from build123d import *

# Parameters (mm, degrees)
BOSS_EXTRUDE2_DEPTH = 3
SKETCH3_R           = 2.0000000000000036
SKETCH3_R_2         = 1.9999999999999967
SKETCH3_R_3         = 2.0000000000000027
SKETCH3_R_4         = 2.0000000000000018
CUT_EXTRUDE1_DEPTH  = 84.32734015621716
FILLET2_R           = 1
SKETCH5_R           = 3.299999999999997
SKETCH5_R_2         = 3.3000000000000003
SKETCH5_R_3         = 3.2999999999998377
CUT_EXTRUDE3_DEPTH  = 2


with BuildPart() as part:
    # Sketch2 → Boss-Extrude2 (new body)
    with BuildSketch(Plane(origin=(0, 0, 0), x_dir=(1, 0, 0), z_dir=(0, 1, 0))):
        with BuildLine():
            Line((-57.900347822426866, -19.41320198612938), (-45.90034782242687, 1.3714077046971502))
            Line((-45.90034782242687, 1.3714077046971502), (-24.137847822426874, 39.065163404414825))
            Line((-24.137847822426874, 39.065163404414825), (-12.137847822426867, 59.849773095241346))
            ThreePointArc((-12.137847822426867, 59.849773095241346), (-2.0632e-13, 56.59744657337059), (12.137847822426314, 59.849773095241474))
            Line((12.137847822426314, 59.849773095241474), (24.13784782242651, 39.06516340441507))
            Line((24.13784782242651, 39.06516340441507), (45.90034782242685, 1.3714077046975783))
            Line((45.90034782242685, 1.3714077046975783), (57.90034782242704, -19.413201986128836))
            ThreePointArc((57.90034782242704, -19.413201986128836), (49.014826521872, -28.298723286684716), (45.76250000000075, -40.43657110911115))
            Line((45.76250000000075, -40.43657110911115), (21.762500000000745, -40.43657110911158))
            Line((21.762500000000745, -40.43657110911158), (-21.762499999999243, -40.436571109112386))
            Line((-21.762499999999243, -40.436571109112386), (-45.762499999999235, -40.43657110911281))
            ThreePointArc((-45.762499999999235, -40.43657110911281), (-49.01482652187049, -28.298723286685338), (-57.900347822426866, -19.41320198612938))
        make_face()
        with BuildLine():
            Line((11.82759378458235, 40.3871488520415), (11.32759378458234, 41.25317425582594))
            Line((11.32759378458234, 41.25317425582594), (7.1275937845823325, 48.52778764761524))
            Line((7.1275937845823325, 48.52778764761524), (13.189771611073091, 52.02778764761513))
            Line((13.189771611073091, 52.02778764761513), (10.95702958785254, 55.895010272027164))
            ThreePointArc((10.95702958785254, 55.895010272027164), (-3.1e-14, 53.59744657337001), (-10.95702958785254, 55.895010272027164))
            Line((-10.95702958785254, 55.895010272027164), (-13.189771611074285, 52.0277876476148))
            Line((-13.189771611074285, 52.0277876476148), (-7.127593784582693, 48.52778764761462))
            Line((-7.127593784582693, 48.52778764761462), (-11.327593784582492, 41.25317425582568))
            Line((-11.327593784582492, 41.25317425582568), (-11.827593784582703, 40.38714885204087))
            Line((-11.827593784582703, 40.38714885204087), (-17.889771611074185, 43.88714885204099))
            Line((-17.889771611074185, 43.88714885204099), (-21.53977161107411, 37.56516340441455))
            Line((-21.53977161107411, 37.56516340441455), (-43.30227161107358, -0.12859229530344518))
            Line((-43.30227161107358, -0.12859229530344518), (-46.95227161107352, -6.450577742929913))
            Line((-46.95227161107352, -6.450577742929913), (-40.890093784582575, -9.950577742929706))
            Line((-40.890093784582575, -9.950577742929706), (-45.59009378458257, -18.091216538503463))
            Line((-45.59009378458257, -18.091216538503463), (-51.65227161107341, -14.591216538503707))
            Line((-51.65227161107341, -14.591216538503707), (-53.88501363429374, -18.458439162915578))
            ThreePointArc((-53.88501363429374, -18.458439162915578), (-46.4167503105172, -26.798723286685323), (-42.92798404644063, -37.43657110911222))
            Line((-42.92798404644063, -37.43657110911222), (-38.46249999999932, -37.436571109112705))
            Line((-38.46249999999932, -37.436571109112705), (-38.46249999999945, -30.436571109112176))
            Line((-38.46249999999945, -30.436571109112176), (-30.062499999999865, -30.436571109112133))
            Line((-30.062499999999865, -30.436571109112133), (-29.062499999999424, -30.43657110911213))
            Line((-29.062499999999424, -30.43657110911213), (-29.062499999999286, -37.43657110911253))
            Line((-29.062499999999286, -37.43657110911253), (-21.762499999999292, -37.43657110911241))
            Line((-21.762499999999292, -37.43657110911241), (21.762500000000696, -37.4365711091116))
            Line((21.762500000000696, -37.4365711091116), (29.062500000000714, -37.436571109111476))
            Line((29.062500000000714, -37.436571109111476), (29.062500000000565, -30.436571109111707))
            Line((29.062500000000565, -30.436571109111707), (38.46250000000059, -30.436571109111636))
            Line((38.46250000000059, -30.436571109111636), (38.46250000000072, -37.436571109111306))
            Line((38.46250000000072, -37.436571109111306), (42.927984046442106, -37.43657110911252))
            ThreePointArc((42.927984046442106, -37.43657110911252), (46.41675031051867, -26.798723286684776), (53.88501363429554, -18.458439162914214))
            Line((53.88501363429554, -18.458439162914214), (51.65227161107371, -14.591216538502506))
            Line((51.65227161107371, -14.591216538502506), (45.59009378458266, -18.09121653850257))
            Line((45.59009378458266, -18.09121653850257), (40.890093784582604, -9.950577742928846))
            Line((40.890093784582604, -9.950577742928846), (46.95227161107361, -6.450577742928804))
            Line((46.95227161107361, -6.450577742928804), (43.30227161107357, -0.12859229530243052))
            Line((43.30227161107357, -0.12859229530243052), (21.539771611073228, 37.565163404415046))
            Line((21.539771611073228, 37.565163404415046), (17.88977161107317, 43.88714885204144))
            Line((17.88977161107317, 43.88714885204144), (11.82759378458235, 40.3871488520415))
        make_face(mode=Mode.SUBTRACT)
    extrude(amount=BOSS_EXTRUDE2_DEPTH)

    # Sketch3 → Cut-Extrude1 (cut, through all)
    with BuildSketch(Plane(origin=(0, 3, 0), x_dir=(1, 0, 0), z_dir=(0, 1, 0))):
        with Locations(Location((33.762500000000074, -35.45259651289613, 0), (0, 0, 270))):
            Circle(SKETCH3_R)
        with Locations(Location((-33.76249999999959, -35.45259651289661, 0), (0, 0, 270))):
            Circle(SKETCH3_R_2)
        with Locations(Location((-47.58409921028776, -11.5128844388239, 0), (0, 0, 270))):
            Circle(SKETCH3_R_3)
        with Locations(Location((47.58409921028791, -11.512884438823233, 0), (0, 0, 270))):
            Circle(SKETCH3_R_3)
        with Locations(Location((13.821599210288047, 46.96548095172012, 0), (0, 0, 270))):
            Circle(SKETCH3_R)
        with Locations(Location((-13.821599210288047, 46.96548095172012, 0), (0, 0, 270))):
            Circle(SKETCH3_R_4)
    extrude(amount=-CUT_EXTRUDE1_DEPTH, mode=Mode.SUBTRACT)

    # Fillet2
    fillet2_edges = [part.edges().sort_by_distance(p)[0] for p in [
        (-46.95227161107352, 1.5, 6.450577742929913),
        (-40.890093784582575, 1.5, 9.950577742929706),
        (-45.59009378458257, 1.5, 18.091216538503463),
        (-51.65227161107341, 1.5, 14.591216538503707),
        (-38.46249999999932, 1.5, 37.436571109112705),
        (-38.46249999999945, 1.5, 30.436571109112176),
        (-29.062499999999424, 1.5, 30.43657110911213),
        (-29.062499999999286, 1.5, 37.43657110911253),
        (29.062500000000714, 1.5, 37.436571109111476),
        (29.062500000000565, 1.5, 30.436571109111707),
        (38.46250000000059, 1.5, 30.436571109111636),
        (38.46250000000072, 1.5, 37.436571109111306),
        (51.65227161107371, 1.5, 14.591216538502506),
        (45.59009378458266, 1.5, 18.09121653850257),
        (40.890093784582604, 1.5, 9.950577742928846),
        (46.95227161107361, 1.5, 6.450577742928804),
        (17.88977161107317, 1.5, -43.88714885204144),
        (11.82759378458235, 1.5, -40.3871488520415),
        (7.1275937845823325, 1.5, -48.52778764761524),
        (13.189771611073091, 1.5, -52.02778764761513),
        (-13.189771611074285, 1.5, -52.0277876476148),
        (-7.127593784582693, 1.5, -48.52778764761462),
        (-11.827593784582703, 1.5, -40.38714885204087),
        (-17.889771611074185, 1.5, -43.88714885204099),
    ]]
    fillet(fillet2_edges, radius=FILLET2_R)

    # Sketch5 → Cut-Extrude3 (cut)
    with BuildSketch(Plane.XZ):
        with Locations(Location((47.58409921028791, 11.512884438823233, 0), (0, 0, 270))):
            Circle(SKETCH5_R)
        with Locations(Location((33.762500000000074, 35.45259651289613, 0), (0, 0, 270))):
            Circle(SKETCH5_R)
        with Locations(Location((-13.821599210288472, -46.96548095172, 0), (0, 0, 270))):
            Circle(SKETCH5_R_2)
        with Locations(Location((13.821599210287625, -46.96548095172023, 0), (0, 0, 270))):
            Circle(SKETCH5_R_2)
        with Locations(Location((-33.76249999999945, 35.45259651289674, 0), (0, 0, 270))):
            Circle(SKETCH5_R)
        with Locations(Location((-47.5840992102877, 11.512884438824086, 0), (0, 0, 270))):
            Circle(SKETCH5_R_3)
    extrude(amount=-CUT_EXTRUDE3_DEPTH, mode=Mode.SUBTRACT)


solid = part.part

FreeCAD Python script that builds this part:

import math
import FreeCAD as App
import Part
import Sketcher
Q = App.Units.Quantity


def edges_at(feature, points):
    """Names of the edges that pass closest to the given points."""
    edges = feature.Shape.Edges
    near = lambda p: min(range(len(edges)), key=lambda i: edges[i].distToShape(Part.Vertex(*p))[0])
    return sorted({f"Edge{near(p) + 1}" for p in points})

doc = App.newDocument("Part")
params = doc.addObject("Spreadsheet::Sheet", "Params")
for row, (alias, value) in enumerate([
    ("sketch1_height", "7 mm"),
    ("sketch1_length", "7 mm"),
    ("sketch1_width", "9.4 mm"),
    ("sketch1_length2", "9.4 mm"),
    ("pad1_length", "3 mm"),
    ("sketch2_diameter", "4 mm"),
    ("fillet_radius", "1 mm"),
    ("sketch3_diameter", "6.6 mm"),
    ("pocket2_length", "2 mm"),
], start=1):
    params.set(f"A{row}", alias)
    params.set(f"B{row}", "=" + value)
    params.setAlias(f"B{row}", alias)

body = doc.addObject("PartDesign::Body", "Body")

# Sketch on XZ plane
sketch1 = body.newObject("Sketcher::SketchObject", "Sketch")
sketch1.AttachmentSupport = (doc.getObject("XZ_Plane"), [""])
sketch1.MapMode = "FlatFace"
sketch1.addGeometry([
    Part.LineSegment(App.Vector(-12.1, -59.8, 0), App.Vector(-57.9, 19.4, 0)),  # 0
    Part.ArcOfCircle(Part.Circle(App.Vector(-70, 40.4, 0), App.Vector(0, 0, 1), 24.3), math.radians(-60), math.radians(0)),  # 1
    Part.LineSegment(App.Vector(-45.8, 40.4, 0), App.Vector(45.8, 40.4, 0)),  # 2
    Part.ArcOfCircle(Part.Circle(App.Vector(70, 40.4, 0), App.Vector(0, 0, 1), 24.3), math.radians(180), math.radians(240)),  # 3
    Part.LineSegment(App.Vector(57.9, 19.4, 0), App.Vector(12.1, -59.8, 0)),  # 4
    Part.ArcOfCircle(Part.Circle(App.Vector(0, -80.9, 0), App.Vector(0, 0, 1), 24.3), math.radians(60), math.radians(120)),  # 5
    Part.LineSegment(App.Vector(11.8, -40.4, 0), App.Vector(17.9, -43.9, 0)),  # 6
    Part.LineSegment(App.Vector(17.9, -43.9, 0), App.Vector(47, 6.5, 0)),  # 7
    Part.LineSegment(App.Vector(47, 6.5, 0), App.Vector(40.9, 10, 0)),  # 8
    Part.LineSegment(App.Vector(40.9, 10, 0), App.Vector(45.6, 18.1, 0)),  # 9
    Part.LineSegment(App.Vector(45.6, 18.1, 0), App.Vector(51.7, 14.6, 0)),  # 10
    Part.LineSegment(App.Vector(51.7, 14.6, 0), App.Vector(53.9, 18.5, 0)),  # 11
    Part.ArcOfCircle(Part.Circle(App.Vector(70, 40.4, 0), App.Vector(0, 0, 1), 27.3), math.radians(-174), math.radians(-126)),  # 12
    Part.LineSegment(App.Vector(42.9, 37.4, 0), App.Vector(38.5, 37.4, 0)),  # 13
    Part.LineSegment(App.Vector(38.5, 37.4, 0), App.Vector(38.5, 30.4, 0)),  # 14
    Part.LineSegment(App.Vector(38.5, 30.4, 0), App.Vector(29.1, 30.4, 0)),  # 15
    Part.LineSegment(App.Vector(29.1, 30.4, 0), App.Vector(29.1, 37.4, 0)),  # 16
    Part.LineSegment(App.Vector(29.1, 37.4, 0), App.Vector(-29.1, 37.4, 0)),  # 17
    Part.LineSegment(App.Vector(-29.1, 37.4, 0), App.Vector(-29.1, 30.4, 0)),  # 18
    Part.LineSegment(App.Vector(-29.1, 30.4, 0), App.Vector(-38.5, 30.4, 0)),  # 19
    Part.LineSegment(App.Vector(-38.5, 30.4, 0), App.Vector(-38.5, 37.4, 0)),  # 20
    Part.LineSegment(App.Vector(-38.5, 37.4, 0), App.Vector(-42.9, 37.4, 0)),  # 21
    Part.ArcOfCircle(Part.Circle(App.Vector(-70, 40.4, 0), App.Vector(0, 0, 1), 27.3), math.radians(-54), math.radians(-6)),  # 22
    Part.LineSegment(App.Vector(-53.9, 18.5, 0), App.Vector(-51.7, 14.6, 0)),  # 23
    Part.LineSegment(App.Vector(-51.7, 14.6, 0), App.Vector(-45.6, 18.1, 0)),  # 24
    Part.LineSegment(App.Vector(-45.6, 18.1, 0), App.Vector(-40.9, 10, 0)),  # 25
    Part.LineSegment(App.Vector(-40.9, 10, 0), App.Vector(-47, 6.5, 0)),  # 26
    Part.LineSegment(App.Vector(-47, 6.5, 0), App.Vector(-17.9, -43.9, 0)),  # 27
    Part.LineSegment(App.Vector(-17.9, -43.9, 0), App.Vector(-11.8, -40.4, 0)),  # 28
    Part.LineSegment(App.Vector(-11.8, -40.4, 0), App.Vector(-7.1, -48.5, 0)),  # 29
    Part.LineSegment(App.Vector(-7.1, -48.5, 0), App.Vector(-13.2, -52, 0)),  # 30
    Part.LineSegment(App.Vector(-13.2, -52, 0), App.Vector(-11, -55.9, 0)),  # 31
    Part.ArcOfCircle(Part.Circle(App.Vector(0, -80.9, 0), App.Vector(0, 0, 1), 27.3), math.radians(66), math.radians(114)),  # 32
    Part.LineSegment(App.Vector(11, -55.9, 0), App.Vector(13.2, -52, 0)),  # 33
    Part.LineSegment(App.Vector(13.2, -52, 0), App.Vector(7.1, -48.5, 0)),  # 34
    Part.LineSegment(App.Vector(7.1, -48.5, 0), App.Vector(11.8, -40.4, 0)),  # 35
], False)
sketch1.addConstraint([
    Sketcher.Constraint("Coincident", 0, 2, 1, 1),
    Sketcher.Constraint("Coincident", 1, 2, 2, 1),
    Sketcher.Constraint("Coincident", 2, 2, 3, 1),
    Sketcher.Constraint("Coincident", 3, 2, 4, 1),
    Sketcher.Constraint("Coincident", 4, 2, 5, 1),
    Sketcher.Constraint("Coincident", 5, 2, 0, 1),
    Sketcher.Constraint("Coincident", 6, 2, 7, 1),
    Sketcher.Constraint("Coincident", 7, 2, 8, 1),
    Sketcher.Constraint("Coincident", 8, 2, 9, 1),
    Sketcher.Constraint("Coincident", 9, 2, 10, 1),
    Sketcher.Constraint("Coincident", 10, 2, 11, 1),
    Sketcher.Constraint("Coincident", 11, 2, 12, 2),
    Sketcher.Constraint("Coincident", 12, 1, 13, 1),
    Sketcher.Constraint("Coincident", 13, 2, 14, 1),
    Sketcher.Constraint("Coincident", 14, 2, 15, 1),
    Sketcher.Constraint("Coincident", 15, 2, 16, 1),
    Sketcher.Constraint("Coincident", 16, 2, 17, 1),
    Sketcher.Constraint("Coincident", 17, 2, 18, 1),
    Sketcher.Constraint("Coincident", 18, 2, 19, 1),
    Sketcher.Constraint("Coincident", 19, 2, 20, 1),
    Sketcher.Constraint("Coincident", 20, 2, 21, 1),
    Sketcher.Constraint("Coincident", 21, 2, 22, 2),
    Sketcher.Constraint("Coincident", 22, 1, 23, 1),
    Sketcher.Constraint("Coincident", 23, 2, 24, 1),
    Sketcher.Constraint("Coincident", 24, 2, 25, 1),
    Sketcher.Constraint("Coincident", 25, 2, 26, 1),
    Sketcher.Constraint("Coincident", 26, 2, 27, 1),
    Sketcher.Constraint("Coincident", 27, 2, 28, 1),
    Sketcher.Constraint("Coincident", 28, 2, 29, 1),
    Sketcher.Constraint("Coincident", 29, 2, 30, 1),
    Sketcher.Constraint("Coincident", 30, 2, 31, 1),
    Sketcher.Constraint("Coincident", 31, 2, 32, 2),
    Sketcher.Constraint("Coincident", 32, 1, 33, 1),
    Sketcher.Constraint("Coincident", 33, 2, 34, 1),
    Sketcher.Constraint("Coincident", 34, 2, 35, 1),
    Sketcher.Constraint("Coincident", 35, 2, 6, 1),
    Sketcher.Constraint("Horizontal", 2),
    Sketcher.Constraint("Horizontal", 13),
    Sketcher.Constraint("Vertical", 14),
    Sketcher.Constraint("Horizontal", 15),
    Sketcher.Constraint("Vertical", 16),
    Sketcher.Constraint("Horizontal", 17),
    Sketcher.Constraint("Vertical", 18),
    Sketcher.Constraint("Horizontal", 19),
    Sketcher.Constraint("Vertical", 20),
    Sketcher.Constraint("Horizontal", 21),
    Sketcher.Constraint("Coincident", 12, 3, 3, 3),
    Sketcher.Constraint("Coincident", 22, 3, 1, 3),
    Sketcher.Constraint("Coincident", 32, 3, 5, 3),
    Sketcher.Constraint("Equal", 1, 3),
    Sketcher.Constraint("Equal", 3, 5),
    Sketcher.Constraint("Equal", 12, 22),
    Sketcher.Constraint("Equal", 22, 32),
    Sketcher.Constraint("Symmetric", 1, 3, 3, 3, -2),
    Sketcher.Constraint("Symmetric", 4, 2, 5, 2, -2),
    Sketcher.Constraint("Symmetric", 15, 2, 18, 2, -2),
    Sketcher.Constraint("Symmetric", 13, 2, 20, 2, -2),
    Sketcher.Constraint("Symmetric", 10, 2, 23, 2, -2),
    Sketcher.Constraint("Symmetric", 9, 2, 24, 2, -2),
    Sketcher.Constraint("Symmetric", 8, 2, 25, 2, -2),
    Sketcher.Constraint("Symmetric", 7, 2, 26, 2, -2),
    Sketcher.Constraint("Symmetric", 6, 2, 27, 2, -2),
    Sketcher.Constraint("Symmetric", 30, 2, 33, 2, -2),
    Sketcher.Constraint("Symmetric", 29, 2, 34, 2, -2),
    Sketcher.Constraint("Symmetric", 28, 2, 35, 2, -2),
    Sketcher.Constraint("Perpendicular", 4, 6),
    Sketcher.Constraint("Perpendicular", 6, 7),
    Sketcher.Constraint("Perpendicular", 7, 8),
    Sketcher.Constraint("Perpendicular", 8, 9),
    Sketcher.Constraint("Perpendicular", 9, 10),
    Sketcher.Constraint("Perpendicular", 10, 11),
    Sketcher.Constraint("Parallel", 0, 23),
    Sketcher.Constraint("Perpendicular", 23, 24),
    Sketcher.Constraint("Perpendicular", 28, 29),
    Sketcher.Constraint("Perpendicular", 29, 30),
    Sketcher.Constraint("Perpendicular", 30, 31),
    Sketcher.Constraint("Parallel", 11, 33),
    Sketcher.Constraint("Horizontal", 22, 3, 1, 2),
    Sketcher.Constraint("Horizontal", 13, 2, 16, 2),
    Sketcher.Constraint("Equal", 6, 8),
    Sketcher.Constraint("Equal", 8, 10),
    Sketcher.Constraint("Equal", 25, 29),
    Sketcher.Constraint("Equal", 28, 30),
    Sketcher.Constraint("Equal", 23, 31),
    Sketcher.Constraint("DistanceY", 14, 2, 14, 1, Q("7 mm")),
    Sketcher.Constraint("Angle", 0, Q("120 deg")),
    Sketcher.Constraint("Distance", 6, Q("7 mm")),
    Sketcher.Constraint("DistanceX", 15, 2, 15, 1, Q("9.4 mm")),
    Sketcher.Constraint("DistanceY", 12, 1, 2, 2, Q("3 mm")),
    Sketcher.Constraint("Distance", 9, Q("9.4 mm")),
    Sketcher.Constraint("DistanceX", 13, 2, 2, 2, Q("7.3 mm")),
    Sketcher.Constraint("DistanceX", 2, 1, 2, 2, Q("91.525 mm")),
    Sketcher.Constraint("Distance", 0, Q("91.525 mm")),
    Sketcher.Constraint("Distance", 7, Q("58.125 mm")),
    Sketcher.Constraint("Radius", 1, Q("24.275696 mm")),
    Sketcher.Constraint("Radius", 12, Q("27.275696 mm")),
    Sketcher.Constraint("DistanceY", -1, 1, 0, 2, Q("19.413202 mm")),
    Sketcher.Constraint("DistanceX", 8, 2, 3, 3, Q("29.148102 mm")),
    Sketcher.Constraint("DistanceY", -1, 1, 1, 3, Q("40.436571 mm")),
])
sketch1.setExpression("Constraints[84]", "Params.sketch1_height")
sketch1.setExpression("Constraints[86]", "Params.sketch1_length")
sketch1.setExpression("Constraints[87]", "Params.sketch1_width")
sketch1.setExpression("Constraints[89]", "Params.sketch1_length2")
pad1 = body.newObject("PartDesign::Pad", "Pad")
pad1.Profile = sketch1
pad1.setExpression("Length", "Params.pad1_length")
pad1.Reversed = True

# Sketch on XZ plane
sketch2 = body.newObject("Sketcher::SketchObject", "Sketch001")
sketch2.AttachmentSupport = (doc.getObject("XZ_Plane"), [""])
sketch2.MapMode = "FlatFace"
sketch2.AttachmentOffset = App.Placement(App.Vector(0, 0, -3), App.Rotation())
sketch2.addGeometry([
    Part.Circle(App.Vector(33.8, 35.5, 0), App.Vector(0, 0, 1), 2),  # 0
    Part.Circle(App.Vector(-33.8, 35.5, 0), App.Vector(0, 0, 1), 2),  # 1
    Part.Circle(App.Vector(-47.6, 11.5, 0), App.Vector(0, 0, 1), 2),  # 2
    Part.Circle(App.Vector(47.6, 11.5, 0), App.Vector(0, 0, 1), 2),  # 3
    Part.Circle(App.Vector(13.8, -47, 0), App.Vector(0, 0, 1), 2),  # 4
    Part.Circle(App.Vector(-13.8, -47, 0), App.Vector(0, 0, 1), 2),  # 5
], False)
sketch2.addConstraint([
    Sketcher.Constraint("Equal", 0, 1),
    Sketcher.Constraint("Equal", 1, 2),
    Sketcher.Constraint("Equal", 2, 3),
    Sketcher.Constraint("Equal", 3, 4),
    Sketcher.Constraint("Equal", 4, 5),
    Sketcher.Constraint("Symmetric", 0, 3, 1, 3, -2),
    Sketcher.Constraint("Symmetric", 2, 3, 3, 3, -2),
    Sketcher.Constraint("Symmetric", 4, 3, 5, 3, -2),
    Sketcher.Constraint("Diameter", 0, Q("4 mm")),
    Sketcher.Constraint("DistanceX", 1, 3, 0, 3, Q("67.525 mm")),
    Sketcher.Constraint("DistanceX", 2, 3, -1, 1, Q("47.584099 mm")),
    Sketcher.Constraint("DistanceX", -1, 1, 4, 3, Q("13.821599 mm")),
    Sketcher.Constraint("DistanceY", 4, 3, -1, 1, Q("46.965481 mm")),
    Sketcher.Constraint("DistanceY", -1, 1, 0, 3, Q("35.452597 mm")),
    Sketcher.Constraint("DistanceY", -1, 1, 2, 3, Q("11.512884 mm")),
])
sketch2.setExpression("Constraints[8]", "Params.sketch2_diameter")
pocket1 = body.newObject("PartDesign::Pocket", "Pocket")
pocket1.Profile = sketch2
pocket1.Type = "ThroughAll"
pocket1.Reversed = True
doc.recompute()

fillet = body.newObject("PartDesign::Fillet", "Fillet")
fillet.Base = (pocket1, edges_at(pocket1, [
    (-46.952, 1.5, 6.451),
    (-40.89, 1.5, 9.951),
    (-45.59, 1.5, 18.091),
    (-51.652, 1.5, 14.591),
    (-38.462, 1.5, 37.437),
    (-38.462, 1.5, 30.437),
    (-29.062, 1.5, 30.437),
    (-29.062, 1.5, 37.437),
    (29.062, 1.5, 37.437),
    (29.062, 1.5, 30.437),
    (38.462, 1.5, 30.437),
    (38.462, 1.5, 37.437),
    (51.652, 1.5, 14.591),
    (45.59, 1.5, 18.091),
    (40.89, 1.5, 9.951),
    (46.952, 1.5, 6.451),
    (17.89, 1.5, -43.887),
    (11.828, 1.5, -40.387),
    (7.128, 1.5, -48.528),
    (13.19, 1.5, -52.028),
    (-13.19, 1.5, -52.028),
    (-7.128, 1.5, -48.528),
    (-11.828, 1.5, -40.387),
    (-17.89, 1.5, -43.887),
]))
fillet.setExpression("Radius", "Params.fillet_radius")

# Sketch on XZ plane
sketch3 = body.newObject("Sketcher::SketchObject", "Sketch002")
sketch3.AttachmentSupport = (doc.getObject("XZ_Plane"), [""])
sketch3.MapMode = "FlatFace"
sketch3.addGeometry([
    Part.Circle(App.Vector(47.6, 11.5, 0), App.Vector(0, 0, 1), 3.3),  # 0
    Part.Circle(App.Vector(33.8, 35.5, 0), App.Vector(0, 0, 1), 3.3),  # 1
    Part.Circle(App.Vector(-13.8, -47, 0), App.Vector(0, 0, 1), 3.3),  # 2
    Part.Circle(App.Vector(13.8, -47, 0), App.Vector(0, 0, 1), 3.3),  # 3
    Part.Circle(App.Vector(-33.8, 35.5, 0), App.Vector(0, 0, 1), 3.3),  # 4
    Part.Circle(App.Vector(-47.6, 11.5, 0), App.Vector(0, 0, 1), 3.3),  # 5
], False)
sketch3.addConstraint([
    Sketcher.Constraint("Equal", 0, 1),
    Sketcher.Constraint("Equal", 1, 2),
    Sketcher.Constraint("Equal", 2, 3),
    Sketcher.Constraint("Equal", 3, 4),
    Sketcher.Constraint("Equal", 4, 5),
    Sketcher.Constraint("Symmetric", 2, 3, 3, 3, -2),
    Sketcher.Constraint("Symmetric", 1, 3, 4, 3, -2),
    Sketcher.Constraint("Symmetric", 0, 3, 5, 3, -2),
    Sketcher.Constraint("Diameter", 0, Q("6.6 mm")),
    Sketcher.Constraint("DistanceX", 4, 3, 1, 3, Q("67.525 mm")),
    Sketcher.Constraint("DistanceX", -1, 1, 0, 3, Q("47.584099 mm")),
    Sketcher.Constraint("DistanceX", 2, 3, -1, 1, Q("13.821599 mm")),
    Sketcher.Constraint("DistanceY", 2, 3, -1, 1, Q("46.965481 mm")),
    Sketcher.Constraint("DistanceY", -1, 1, 0, 3, Q("11.512884 mm")),
    Sketcher.Constraint("DistanceY", -1, 1, 1, 3, Q("35.452597 mm")),
])
sketch3.setExpression("Constraints[8]", "Params.sketch3_diameter")
pocket2 = body.newObject("PartDesign::Pocket", "Pocket001")
pocket2.Profile = sketch3
pocket2.setExpression("Length", "Params.pocket2_length")

doc.recompute()
